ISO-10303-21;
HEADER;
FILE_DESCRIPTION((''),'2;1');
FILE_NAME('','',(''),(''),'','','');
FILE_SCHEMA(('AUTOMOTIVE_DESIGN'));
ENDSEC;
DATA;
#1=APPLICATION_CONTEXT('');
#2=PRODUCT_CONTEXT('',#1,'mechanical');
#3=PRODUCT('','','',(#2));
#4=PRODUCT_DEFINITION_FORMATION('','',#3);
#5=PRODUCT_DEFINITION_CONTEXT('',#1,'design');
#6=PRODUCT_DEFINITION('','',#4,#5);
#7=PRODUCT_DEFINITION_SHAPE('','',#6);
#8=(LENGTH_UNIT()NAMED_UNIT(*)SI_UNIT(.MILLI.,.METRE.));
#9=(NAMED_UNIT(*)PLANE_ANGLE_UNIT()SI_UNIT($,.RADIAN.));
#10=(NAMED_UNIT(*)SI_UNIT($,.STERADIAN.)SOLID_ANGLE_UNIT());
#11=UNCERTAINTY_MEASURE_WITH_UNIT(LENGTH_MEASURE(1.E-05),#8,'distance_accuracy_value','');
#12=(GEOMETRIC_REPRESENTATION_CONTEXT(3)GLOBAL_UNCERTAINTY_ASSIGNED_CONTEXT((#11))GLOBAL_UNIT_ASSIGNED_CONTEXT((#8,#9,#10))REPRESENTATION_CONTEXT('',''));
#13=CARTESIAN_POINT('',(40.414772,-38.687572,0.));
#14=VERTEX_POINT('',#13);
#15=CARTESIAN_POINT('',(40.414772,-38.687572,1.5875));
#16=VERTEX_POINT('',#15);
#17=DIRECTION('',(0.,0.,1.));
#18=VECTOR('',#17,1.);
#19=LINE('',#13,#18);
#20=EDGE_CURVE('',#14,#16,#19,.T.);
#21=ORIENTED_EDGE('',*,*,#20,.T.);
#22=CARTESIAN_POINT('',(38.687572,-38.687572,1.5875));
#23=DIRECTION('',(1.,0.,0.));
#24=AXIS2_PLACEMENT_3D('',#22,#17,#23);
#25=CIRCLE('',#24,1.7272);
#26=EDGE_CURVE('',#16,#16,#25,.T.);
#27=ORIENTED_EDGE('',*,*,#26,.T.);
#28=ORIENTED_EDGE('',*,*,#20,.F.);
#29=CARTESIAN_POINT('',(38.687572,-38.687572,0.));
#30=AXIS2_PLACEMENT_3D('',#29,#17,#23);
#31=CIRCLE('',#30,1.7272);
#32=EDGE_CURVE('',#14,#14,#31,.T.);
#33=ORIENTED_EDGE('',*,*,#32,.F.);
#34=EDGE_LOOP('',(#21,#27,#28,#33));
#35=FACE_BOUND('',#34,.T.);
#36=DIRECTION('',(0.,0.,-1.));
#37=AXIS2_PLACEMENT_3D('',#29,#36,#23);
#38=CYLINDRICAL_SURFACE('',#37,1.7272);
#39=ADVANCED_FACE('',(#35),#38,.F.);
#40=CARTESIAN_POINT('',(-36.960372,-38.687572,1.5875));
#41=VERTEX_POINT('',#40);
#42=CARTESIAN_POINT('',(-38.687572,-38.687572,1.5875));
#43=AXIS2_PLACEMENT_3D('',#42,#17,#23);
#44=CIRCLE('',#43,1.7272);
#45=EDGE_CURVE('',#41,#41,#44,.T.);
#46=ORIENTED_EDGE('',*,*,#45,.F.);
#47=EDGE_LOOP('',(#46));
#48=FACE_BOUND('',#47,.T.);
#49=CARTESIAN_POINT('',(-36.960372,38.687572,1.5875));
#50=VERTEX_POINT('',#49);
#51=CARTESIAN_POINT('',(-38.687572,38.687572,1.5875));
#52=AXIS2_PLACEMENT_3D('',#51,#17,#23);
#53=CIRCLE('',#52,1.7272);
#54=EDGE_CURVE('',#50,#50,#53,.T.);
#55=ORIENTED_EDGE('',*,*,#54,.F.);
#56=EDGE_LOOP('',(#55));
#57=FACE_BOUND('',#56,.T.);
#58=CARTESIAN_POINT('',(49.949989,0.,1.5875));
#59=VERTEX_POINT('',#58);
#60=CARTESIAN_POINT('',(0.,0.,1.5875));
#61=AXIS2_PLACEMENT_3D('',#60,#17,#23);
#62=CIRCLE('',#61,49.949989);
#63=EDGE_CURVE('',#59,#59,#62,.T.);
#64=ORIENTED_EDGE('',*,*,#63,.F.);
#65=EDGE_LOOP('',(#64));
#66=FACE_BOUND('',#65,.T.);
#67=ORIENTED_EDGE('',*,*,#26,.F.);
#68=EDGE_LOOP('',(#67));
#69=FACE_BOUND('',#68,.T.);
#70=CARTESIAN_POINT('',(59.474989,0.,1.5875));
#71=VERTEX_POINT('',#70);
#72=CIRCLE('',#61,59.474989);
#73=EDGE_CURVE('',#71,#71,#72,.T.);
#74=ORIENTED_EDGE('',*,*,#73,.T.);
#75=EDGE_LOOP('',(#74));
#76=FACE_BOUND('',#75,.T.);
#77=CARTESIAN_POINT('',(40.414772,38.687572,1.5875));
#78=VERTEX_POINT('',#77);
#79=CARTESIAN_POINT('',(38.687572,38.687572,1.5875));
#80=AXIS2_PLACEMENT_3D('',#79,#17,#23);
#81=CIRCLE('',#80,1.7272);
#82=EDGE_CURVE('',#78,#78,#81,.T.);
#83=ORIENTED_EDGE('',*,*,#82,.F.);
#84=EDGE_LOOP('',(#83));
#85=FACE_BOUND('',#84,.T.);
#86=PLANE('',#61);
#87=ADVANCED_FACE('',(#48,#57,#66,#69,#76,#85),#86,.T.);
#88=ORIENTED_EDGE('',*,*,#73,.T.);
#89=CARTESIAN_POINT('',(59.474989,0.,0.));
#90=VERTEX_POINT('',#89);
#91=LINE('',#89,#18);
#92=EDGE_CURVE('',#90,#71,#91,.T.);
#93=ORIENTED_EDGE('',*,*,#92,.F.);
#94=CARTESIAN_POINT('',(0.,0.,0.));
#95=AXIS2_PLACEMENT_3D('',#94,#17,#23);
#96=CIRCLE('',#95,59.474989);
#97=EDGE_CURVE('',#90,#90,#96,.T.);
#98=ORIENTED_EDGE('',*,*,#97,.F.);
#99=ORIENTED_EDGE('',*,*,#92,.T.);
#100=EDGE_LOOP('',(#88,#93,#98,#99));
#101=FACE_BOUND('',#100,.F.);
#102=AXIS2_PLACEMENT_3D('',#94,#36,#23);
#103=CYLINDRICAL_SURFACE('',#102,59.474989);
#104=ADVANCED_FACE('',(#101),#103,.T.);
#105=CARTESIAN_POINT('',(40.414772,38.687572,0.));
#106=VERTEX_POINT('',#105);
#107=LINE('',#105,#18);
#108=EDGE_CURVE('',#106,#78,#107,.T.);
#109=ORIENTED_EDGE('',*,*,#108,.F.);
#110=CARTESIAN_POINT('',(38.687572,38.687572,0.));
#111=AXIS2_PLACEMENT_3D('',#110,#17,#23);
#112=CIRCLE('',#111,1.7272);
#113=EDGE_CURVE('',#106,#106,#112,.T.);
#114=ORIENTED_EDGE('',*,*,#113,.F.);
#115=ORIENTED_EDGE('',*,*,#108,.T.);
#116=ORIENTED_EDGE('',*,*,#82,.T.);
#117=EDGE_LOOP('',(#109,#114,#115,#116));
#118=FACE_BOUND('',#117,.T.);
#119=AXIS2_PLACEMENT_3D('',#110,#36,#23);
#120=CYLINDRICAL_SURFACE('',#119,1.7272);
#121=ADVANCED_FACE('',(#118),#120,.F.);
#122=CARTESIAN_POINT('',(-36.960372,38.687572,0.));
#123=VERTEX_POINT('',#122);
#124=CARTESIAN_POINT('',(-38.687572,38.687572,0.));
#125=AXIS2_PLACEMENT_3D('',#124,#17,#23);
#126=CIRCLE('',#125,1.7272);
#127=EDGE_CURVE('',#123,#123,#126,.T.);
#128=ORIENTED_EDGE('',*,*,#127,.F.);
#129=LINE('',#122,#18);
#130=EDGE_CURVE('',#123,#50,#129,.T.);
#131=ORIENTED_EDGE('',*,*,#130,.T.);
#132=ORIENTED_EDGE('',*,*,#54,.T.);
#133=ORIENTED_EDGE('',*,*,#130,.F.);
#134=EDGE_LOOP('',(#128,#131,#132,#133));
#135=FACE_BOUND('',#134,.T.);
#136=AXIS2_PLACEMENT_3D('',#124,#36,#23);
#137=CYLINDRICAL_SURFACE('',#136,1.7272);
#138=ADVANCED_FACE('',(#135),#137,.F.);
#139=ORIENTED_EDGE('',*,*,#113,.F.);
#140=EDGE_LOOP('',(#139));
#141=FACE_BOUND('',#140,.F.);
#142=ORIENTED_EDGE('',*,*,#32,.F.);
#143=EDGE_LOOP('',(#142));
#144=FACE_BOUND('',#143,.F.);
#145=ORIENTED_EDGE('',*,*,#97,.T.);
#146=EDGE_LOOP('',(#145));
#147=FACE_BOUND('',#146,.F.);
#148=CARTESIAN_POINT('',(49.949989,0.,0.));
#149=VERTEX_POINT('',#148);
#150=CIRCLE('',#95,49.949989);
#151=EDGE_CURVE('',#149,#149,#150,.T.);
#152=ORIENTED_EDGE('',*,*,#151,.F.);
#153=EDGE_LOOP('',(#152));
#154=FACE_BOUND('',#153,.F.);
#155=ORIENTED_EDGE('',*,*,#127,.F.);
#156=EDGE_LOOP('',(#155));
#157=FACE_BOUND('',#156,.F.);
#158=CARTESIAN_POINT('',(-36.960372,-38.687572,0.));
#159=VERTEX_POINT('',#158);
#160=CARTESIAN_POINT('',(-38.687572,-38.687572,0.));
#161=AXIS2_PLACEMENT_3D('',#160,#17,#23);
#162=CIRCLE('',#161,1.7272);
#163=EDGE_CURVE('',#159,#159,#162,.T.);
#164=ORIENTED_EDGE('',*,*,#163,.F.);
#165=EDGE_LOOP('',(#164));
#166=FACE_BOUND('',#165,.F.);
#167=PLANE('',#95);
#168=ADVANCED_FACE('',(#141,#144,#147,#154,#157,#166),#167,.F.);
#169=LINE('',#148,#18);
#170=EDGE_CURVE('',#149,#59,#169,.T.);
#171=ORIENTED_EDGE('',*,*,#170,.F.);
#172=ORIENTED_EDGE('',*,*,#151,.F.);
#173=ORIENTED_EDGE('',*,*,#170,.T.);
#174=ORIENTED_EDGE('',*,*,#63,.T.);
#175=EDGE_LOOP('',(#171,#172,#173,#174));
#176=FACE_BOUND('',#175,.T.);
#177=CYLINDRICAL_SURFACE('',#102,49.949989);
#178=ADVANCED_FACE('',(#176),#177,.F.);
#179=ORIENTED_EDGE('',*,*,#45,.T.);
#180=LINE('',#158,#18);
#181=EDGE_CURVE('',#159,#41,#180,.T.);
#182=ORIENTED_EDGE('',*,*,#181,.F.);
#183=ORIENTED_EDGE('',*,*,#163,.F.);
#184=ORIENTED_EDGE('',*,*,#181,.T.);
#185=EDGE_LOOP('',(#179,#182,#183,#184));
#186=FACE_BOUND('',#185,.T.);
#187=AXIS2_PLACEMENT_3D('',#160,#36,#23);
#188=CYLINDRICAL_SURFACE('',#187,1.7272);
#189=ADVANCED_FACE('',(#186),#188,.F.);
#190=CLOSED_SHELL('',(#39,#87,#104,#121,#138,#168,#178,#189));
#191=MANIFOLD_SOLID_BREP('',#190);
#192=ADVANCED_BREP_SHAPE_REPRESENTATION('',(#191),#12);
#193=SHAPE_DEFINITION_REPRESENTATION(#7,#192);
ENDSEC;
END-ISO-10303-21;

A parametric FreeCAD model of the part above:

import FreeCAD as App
import Part
import Sketcher
from FreeCAD import Vector
Q = App.Units.Quantity

doc = App.newDocument("Part")
body = doc.addObject("PartDesign::Body", "Body")

# Sketch on XY plane
sketch1 = body.newObject("Sketcher::SketchObject", "Sketch")
sketch1.AttachmentSupport = (doc.getObject("XY_Plane"), [""])
sketch1.MapMode = "FlatFace"
sketch1.addGeometry([
    Part.Circle(Vector(0, 0, 0), Vector(0, 0, 1), 59.5),  # 0
    Part.Circle(Vector(-38.7, -38.7, 0), Vector(0, 0, 1), 1.7),  # 1
    Part.Circle(Vector(38.7, -38.7, 0), Vector(0, 0, 1), 1.7),  # 2
    Part.Circle(Vector(-38.7, 38.7, 0), Vector(0, 0, 1), 1.7),  # 3
    Part.Circle(Vector(0, 0, 0), Vector(0, 0, 1), 49.9),  # 4
    Part.Circle(Vector(38.7, 38.7, 0), Vector(0, 0, 1), 1.7),  # 5
], False)
sketch1.addConstraint([
    Sketcher.Constraint("Coincident", 0, 3, -1, 1),
    Sketcher.Constraint("Coincident", 4, 3, -1, 1),
    Sketcher.Constraint("Equal", 1, 2),
    Sketcher.Constraint("Equal", 2, 3),
    Sketcher.Constraint("Equal", 3, 5),
    Sketcher.Constraint("Symmetric", 2, 3, 3, 3, -1, 1),
    Sketcher.Constraint("Symmetric", 1, 3, 5, 3, -1, 1),
    Sketcher.Constraint("Symmetric", 1, 3, 2, 3, -2),
    Sketcher.Constraint("Diameter", 1, Q("0.136 in")),
    Sketcher.Constraint("Diameter", 0, 118.949978),
    Sketcher.Constraint("Diameter", 4, 99.899978),
    Sketcher.Constraint("DistanceX", 1, 3, -1, 1, 38.687572),
    Sketcher.Constraint("DistanceY", 1, 3, -1, 1, 38.687572),
])
pad1 = body.newObject("PartDesign::Pad", "Pad")
pad1.Profile = sketch1
pad1.Length = Q("0.0625 in")

doc.recompute()
